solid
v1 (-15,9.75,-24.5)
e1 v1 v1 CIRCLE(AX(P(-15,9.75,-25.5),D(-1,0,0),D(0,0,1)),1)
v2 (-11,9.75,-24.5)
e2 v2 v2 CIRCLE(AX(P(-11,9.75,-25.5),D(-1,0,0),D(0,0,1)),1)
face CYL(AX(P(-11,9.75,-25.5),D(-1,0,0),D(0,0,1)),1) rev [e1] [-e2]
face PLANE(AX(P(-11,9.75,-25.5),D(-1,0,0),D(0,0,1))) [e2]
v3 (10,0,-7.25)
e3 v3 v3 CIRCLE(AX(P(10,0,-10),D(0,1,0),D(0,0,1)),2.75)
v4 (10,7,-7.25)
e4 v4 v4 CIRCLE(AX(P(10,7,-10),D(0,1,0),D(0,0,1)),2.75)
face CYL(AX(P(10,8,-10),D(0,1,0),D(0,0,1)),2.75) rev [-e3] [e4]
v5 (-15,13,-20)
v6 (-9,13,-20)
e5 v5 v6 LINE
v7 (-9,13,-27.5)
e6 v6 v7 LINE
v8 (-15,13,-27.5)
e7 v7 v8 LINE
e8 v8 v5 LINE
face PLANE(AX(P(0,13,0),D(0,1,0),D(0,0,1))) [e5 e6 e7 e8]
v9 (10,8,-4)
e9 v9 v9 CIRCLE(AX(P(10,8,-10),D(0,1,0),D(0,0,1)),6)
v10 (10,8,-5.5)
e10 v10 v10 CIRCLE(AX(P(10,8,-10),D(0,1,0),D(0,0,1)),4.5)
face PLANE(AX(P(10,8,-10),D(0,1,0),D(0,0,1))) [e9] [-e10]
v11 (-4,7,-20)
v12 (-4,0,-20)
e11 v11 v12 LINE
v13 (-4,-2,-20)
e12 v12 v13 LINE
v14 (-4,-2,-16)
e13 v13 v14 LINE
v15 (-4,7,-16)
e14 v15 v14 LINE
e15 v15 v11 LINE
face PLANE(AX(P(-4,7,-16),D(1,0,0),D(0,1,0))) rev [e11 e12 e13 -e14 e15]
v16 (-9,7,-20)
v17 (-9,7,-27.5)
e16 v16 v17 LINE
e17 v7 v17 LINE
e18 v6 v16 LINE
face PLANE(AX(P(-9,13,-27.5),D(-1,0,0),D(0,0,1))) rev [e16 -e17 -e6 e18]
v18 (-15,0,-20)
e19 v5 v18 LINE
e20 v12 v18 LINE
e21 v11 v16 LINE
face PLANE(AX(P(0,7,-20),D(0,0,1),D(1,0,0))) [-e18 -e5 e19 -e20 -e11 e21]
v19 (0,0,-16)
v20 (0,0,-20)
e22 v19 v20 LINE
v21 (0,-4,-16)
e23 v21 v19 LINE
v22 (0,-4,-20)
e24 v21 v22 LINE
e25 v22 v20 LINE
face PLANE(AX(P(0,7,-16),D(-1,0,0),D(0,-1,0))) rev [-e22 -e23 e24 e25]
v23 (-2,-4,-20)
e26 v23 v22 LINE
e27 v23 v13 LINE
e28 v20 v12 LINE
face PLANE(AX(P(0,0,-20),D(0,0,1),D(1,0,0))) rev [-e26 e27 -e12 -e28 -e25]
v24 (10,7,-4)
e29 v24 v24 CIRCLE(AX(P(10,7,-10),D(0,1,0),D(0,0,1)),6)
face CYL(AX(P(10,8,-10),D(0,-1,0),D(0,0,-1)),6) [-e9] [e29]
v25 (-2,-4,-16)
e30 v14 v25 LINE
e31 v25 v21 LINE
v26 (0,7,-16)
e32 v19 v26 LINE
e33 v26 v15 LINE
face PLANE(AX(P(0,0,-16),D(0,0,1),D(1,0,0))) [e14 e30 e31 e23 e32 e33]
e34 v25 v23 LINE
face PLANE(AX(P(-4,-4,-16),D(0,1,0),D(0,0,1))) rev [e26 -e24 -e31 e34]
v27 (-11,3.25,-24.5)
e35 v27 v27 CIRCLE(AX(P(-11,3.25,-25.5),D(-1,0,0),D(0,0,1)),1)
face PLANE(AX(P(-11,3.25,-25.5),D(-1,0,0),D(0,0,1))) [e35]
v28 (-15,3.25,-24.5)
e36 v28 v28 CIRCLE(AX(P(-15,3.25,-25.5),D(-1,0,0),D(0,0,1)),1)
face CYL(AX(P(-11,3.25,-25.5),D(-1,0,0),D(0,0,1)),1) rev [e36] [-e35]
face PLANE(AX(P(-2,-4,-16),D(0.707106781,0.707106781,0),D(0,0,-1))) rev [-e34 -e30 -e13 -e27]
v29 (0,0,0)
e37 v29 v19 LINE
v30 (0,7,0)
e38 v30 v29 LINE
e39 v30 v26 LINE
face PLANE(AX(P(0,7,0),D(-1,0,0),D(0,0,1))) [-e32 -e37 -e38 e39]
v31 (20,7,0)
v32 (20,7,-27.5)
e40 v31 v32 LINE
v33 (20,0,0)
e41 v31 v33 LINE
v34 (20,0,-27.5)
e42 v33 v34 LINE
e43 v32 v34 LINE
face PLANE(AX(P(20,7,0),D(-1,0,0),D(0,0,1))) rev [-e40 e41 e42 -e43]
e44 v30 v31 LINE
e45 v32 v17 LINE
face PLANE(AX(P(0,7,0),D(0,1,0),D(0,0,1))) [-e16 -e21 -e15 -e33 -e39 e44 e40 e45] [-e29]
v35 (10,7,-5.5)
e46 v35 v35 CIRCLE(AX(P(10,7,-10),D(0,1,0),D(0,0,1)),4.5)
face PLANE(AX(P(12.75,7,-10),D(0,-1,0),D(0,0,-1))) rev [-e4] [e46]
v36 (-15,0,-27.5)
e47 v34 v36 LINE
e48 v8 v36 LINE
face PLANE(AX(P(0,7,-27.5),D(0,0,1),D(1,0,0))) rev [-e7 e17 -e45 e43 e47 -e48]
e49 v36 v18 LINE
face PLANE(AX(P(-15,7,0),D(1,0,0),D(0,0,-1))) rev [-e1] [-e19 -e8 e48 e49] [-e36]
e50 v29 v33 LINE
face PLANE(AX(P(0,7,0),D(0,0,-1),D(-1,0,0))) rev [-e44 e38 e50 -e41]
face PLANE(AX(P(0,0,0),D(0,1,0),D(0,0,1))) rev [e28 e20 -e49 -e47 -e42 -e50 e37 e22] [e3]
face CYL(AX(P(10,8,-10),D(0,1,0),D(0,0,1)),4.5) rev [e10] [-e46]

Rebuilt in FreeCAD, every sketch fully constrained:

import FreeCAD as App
import Part
import Sketcher

V = App.Vector
Q = App.Units.Quantity


def edges_at(feature, points):
    """Names of the edges that pass closest to the given points."""
    edges = feature.Shape.Edges
    near = lambda p: min(range(len(edges)), key=lambda i: edges[i].distToShape(Part.Vertex(*p))[0])
    return sorted({f"Edge{near(p) + 1}" for p in points})


def add_polygon(sketch, points):
    """Adds a closed chain of lines whose ends are joined by coincident constraints."""
    first, n = sketch.GeometryCount, len(points)
    for a, b in zip(points, points[1:] + points[:1]):
        sketch.addGeometry(Part.LineSegment(App.Vector(*a, 0), App.Vector(*b, 0)), False)
    for i in range(n):
        sketch.addConstraint(Sketcher.Constraint("Coincident", first + i, 2, first + (i + 1) % n, 1))

doc = App.newDocument("Part")
body = doc.addObject("PartDesign::Body", "Body")

# Sketch on XZ plane
sketch1 = body.newObject("Sketcher::SketchObject", "Sketch")
sketch1.AttachmentSupport = (doc.getObject("XZ_Plane"), [""])
sketch1.MapMode = "FlatFace"
add_polygon(sketch1, [(-15, -28), (-15, -20), (0, -20), (0, 0), (20, 0), (20, -28)])  # lines 0-5
sketch1.addConstraint([
    Sketcher.Constraint("Vertical", 0),
    Sketcher.Constraint("Horizontal", 1),
    Sketcher.Constraint("Vertical", 2),
    Sketcher.Constraint("Horizontal", 3),
    Sketcher.Constraint("Vertical", 4),
    Sketcher.Constraint("Horizontal", 5),
    Sketcher.Constraint("Coincident", 2, 2, -1, 1),
    Sketcher.Constraint("Equal", 3, 2),
    Sketcher.Constraint("DistanceX", 1, 1, 1, 2, Q("15 mm")),
    Sketcher.Constraint("DistanceX", 3, 1, 3, 2, Q("20 mm")),
    Sketcher.Constraint("DistanceY", 0, 1, 0, 2, Q("7.5 mm")),
])
pad1 = body.newObject("PartDesign::Pad", "Pad")
pad1.Profile = sketch1
pad1.Length = 7
pad1.Reversed = True

# Sketch on XZ plane
sketch2 = body.newObject("Sketcher::SketchObject", "Sketch001")
sketch2.AttachmentSupport = (doc.getObject("XZ_Plane"), [""])
sketch2.MapMode = "FlatFace"
sketch2.AttachmentOffset = App.Placement(V(0, 0, -7), App.Rotation())
add_polygon(sketch2, [(-15, -28), (-15, -20), (-9, -20), (-9, -28)])  # lines 0-3
sketch2.addConstraint([
    Sketcher.Constraint("Vertical", 0),
    Sketcher.Constraint("Horizontal", 1),
    Sketcher.Constraint("Vertical", 2),
    Sketcher.Constraint("Horizontal", 3),
    Sketcher.Constraint("DistanceX", 1, 1, 1, 2, Q("6 mm")),
    Sketcher.Constraint("DistanceY", 0, 1, 0, 2, Q("7.5 mm")),
    Sketcher.Constraint("DistanceX", 0, 2, -1, 1, Q("15 mm")),
    Sketcher.Constraint("DistanceY", 0, 2, -1, 1, Q("20 mm")),
])
pad2 = body.newObject("PartDesign::Pad", "Pad001")
pad2.Profile = sketch2
pad2.Length = 6
pad2.Reversed = True

# Sketch on XZ plane
sketch3 = body.newObject("Sketcher::SketchObject", "Sketch002")
sketch3.AttachmentSupport = (doc.getObject("XZ_Plane"), [""])
sketch3.MapMode = "FlatFace"
sketch3.AttachmentOffset = App.Placement(V(0, 0, -7), App.Rotation())
sketch3.addGeometry(Part.Circle(V(10, -10, 0), V(0, 0, 1), 6), False)
sketch3.addConstraint([
    Sketcher.Constraint("Diameter", 0, Q("12 mm")),
    Sketcher.Constraint("DistanceX", -1, 1, 0, 3, Q("10 mm")),
    Sketcher.Constraint("DistanceY", 0, 3, -1, 1, Q("10 mm")),
])
pad3 = body.newObject("PartDesign::Pad", "Pad002")
pad3.Profile = sketch3
pad3.Length = 1
pad3.Reversed = True

# Sketch on YZ plane
sketch4 = body.newObject("Sketcher::SketchObject", "Sketch003")
sketch4.AttachmentSupport = (doc.getObject("YZ_Plane"), [""])
sketch4.MapMode = "FlatFace"
sketch4.AttachmentOffset = App.Placement(V(0, 0, -15), App.Rotation())
sketch4.addGeometry([
    Part.Circle(V(9.8, -25.5, 0), V(0, 0, 1), 1),
    Part.Circle(V(3.2, -25.5, 0), V(0, 0, 1), 1),
], False)
sketch4.addConstraint([
    Sketcher.Constraint("Equal", 0, 1),
    Sketcher.Constraint("Horizontal", 0, 3, 1, 3),
    Sketcher.Constraint("Diameter", 0, Q("2 mm")),
    Sketcher.Constraint("DistanceY", 0, 3, -1, 1, Q("25.5 mm")),
    Sketcher.Constraint("DistanceX", 1, 3, 0, 3, Q("6.5 mm")),
    Sketcher.Constraint("DistanceX", -1, 1, 0, 3, Q("9.75 mm")),
])
pocket1 = body.newObject("PartDesign::Pocket", "Pocket")
pocket1.Profile = sketch4
pocket1.Length = 4
pocket1.Reversed = True

# Sketch on XY plane
sketch5 = body.newObject("Sketcher::SketchObject", "Sketch004")
sketch5.AttachmentSupport = (doc.getObject("XY_Plane"), [""])
sketch5.MapMode = "FlatFace"
sketch5.AttachmentOffset = App.Placement(V(0, 0, -20), App.Rotation())
add_polygon(sketch5, [(-4, 7), (-4, -4), (0, -4), (0, 7)])  # lines 0-3
sketch5.addConstraint([
    Sketcher.Constraint("Vertical", 0),
    Sketcher.Constraint("Horizontal", 1),
    Sketcher.Constraint("Vertical", 2),
    Sketcher.Constraint("Horizontal", 3),
    Sketcher.Constraint("PointOnObject", 1, 2, -2),
    Sketcher.Constraint("DistanceX", 1, 1, 1, 2, Q("4 mm")),
    Sketcher.Constraint("DistanceY", 0, 2, 0, 1, Q("11 mm")),
    Sketcher.Constraint("DistanceY", 0, 2, -1, 1, Q("4 mm")),
])
pad4 = body.newObject("PartDesign::Pad", "Pad003")
pad4.Profile = sketch5
pad4.Length = 4

# Sketch on XZ plane
sketch6 = body.newObject("Sketcher::SketchObject", "Sketch005")
sketch6.AttachmentSupport = (doc.getObject("XZ_Plane"), [""])
sketch6.MapMode = "FlatFace"
sketch6.AttachmentOffset = App.Placement(V(0, 0, -8), App.Rotation())
sketch6.addGeometry(Part.Circle(V(10, -10, 0), V(0, 0, 1), 2.8), False)
sketch6.addConstraint([
    Sketcher.Constraint("Diameter", 0, Q("5.5 mm")),
    Sketcher.Constraint("DistanceX", -1, 1, 0, 3, Q("10 mm")),
    Sketcher.Constraint("DistanceY", 0, 3, -1, 1, Q("10 mm")),
])
doc.recompute()
hole = body.newObject("PartDesign::Hole", "Hole")
hole.Profile = sketch6
hole.ThreadType = "None"
hole.Diameter = 5.5
hole.DepthType = "ThroughAll"
hole.HoleCutType = "Counterbore"
hole.HoleCutDiameter = 9
hole.HoleCutDepth = 1
hole.Reversed = True
doc.recompute()

chamfer = body.newObject("PartDesign::Chamfer", "Chamfer")
chamfer.Base = (hole, edges_at(hole, [(-4, -4, -18)]))
chamfer.Size = 2

doc.recompute()
